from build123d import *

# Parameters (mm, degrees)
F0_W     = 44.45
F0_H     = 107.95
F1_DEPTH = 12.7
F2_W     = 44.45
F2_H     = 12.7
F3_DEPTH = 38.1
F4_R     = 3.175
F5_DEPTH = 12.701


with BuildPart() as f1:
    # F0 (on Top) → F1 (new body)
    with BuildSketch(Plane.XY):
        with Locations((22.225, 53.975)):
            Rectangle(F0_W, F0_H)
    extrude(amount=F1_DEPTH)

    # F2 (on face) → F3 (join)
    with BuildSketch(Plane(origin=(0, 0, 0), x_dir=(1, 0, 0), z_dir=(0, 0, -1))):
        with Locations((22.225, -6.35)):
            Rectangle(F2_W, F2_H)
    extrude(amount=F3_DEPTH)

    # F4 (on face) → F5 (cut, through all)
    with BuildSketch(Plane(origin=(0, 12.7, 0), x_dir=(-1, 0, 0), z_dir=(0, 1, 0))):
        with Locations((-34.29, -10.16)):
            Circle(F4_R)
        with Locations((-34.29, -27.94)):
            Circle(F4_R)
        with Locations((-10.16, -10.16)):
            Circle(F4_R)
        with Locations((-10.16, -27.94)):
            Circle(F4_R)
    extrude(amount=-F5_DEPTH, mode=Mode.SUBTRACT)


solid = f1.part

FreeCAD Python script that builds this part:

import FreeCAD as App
import Part
import Sketcher
Q = App.Units.Quantity

doc = App.newDocument("Part")
body = doc.addObject("PartDesign::Body", "Body")

sketch1 = body.newObject("Sketcher::SketchObject", "Sketch")
sketch1.AttachmentSupport = (doc.getObject("XY_Plane"), [""])
sketch1.MapMode = "FlatFace"
sketch1.addGeometry([
    Part.LineSegment(App.Vector(0, 108, 0), App.Vector(0, 0, 0)),
    Part.LineSegment(App.Vector(0, 0, 0), App.Vector(44, 0, 0)),
    Part.LineSegment(App.Vector(44, 0, 0), App.Vector(44, 108, 0)),
    Part.LineSegment(App.Vector(44, 108, 0), App.Vector(0, 108, 0)),
], False)
sketch1.addConstraint([
    Sketcher.Constraint("Coincident", 0, 2, 1, 1),
    Sketcher.Constraint("Coincident", 1, 2, 2, 1),
    Sketcher.Constraint("Coincident", 2, 2, 3, 1),
    Sketcher.Constraint("Coincident", 3, 2, 0, 1),
    Sketcher.Constraint("Vertical", 0),
    Sketcher.Constraint("Horizontal", 1),
    Sketcher.Constraint("Vertical", 2),
    Sketcher.Constraint("Horizontal", 3),
    Sketcher.Constraint("Coincident", 0, 2, -1, 1),
    Sketcher.Constraint("DistanceX", 1, 1, 1, 2, Q("1.75 in")),
    Sketcher.Constraint("DistanceY", 0, 2, 0, 1, Q("4.25 in")),
])
pad1 = body.newObject("PartDesign::Pad", "Pad")
pad1.Profile = sketch1
pad1.Length = Q("0.5 in")

sketch2 = body.newObject("Sketcher::SketchObject", "Sketch001")
sketch2.AttachmentSupport = (doc.getObject("XY_Plane"), [""])
sketch2.MapMode = "FlatFace"
sketch2.addGeometry([
    Part.LineSegment(App.Vector(0, 0, 0), App.Vector(0, 13, 0)),
    Part.LineSegment(App.Vector(0, 13, 0), App.Vector(44, 13, 0)),
    Part.LineSegment(App.Vector(44, 13, 0), App.Vector(44, 0, 0)),
    Part.LineSegment(App.Vector(44, 0, 0), App.Vector(0, 0, 0)),
], False)
sketch2.addConstraint([
    Sketcher.Constraint("Coincident", 0, 2, 1, 1),
    Sketcher.Constraint("Coincident", 1, 2, 2, 1),
    Sketcher.Constraint("Coincident", 2, 2, 3, 1),
    Sketcher.Constraint("Coincident", 3, 2, 0, 1),
    Sketcher.Constraint("Vertical", 0),
    Sketcher.Constraint("Horizontal", 1),
    Sketcher.Constraint("Vertical", 2),
    Sketcher.Constraint("Horizontal", 3),
    Sketcher.Constraint("Coincident", 3, 2, -1, 1),
    Sketcher.Constraint("DistanceY", 0, 1, 0, 2, Q("0.5 in")),
    Sketcher.Constraint("DistanceX", 1, 1, 1, 2, Q("1.75 in")),
])
pad2 = body.newObject("PartDesign::Pad", "Pad001")
pad2.Profile = sketch2
pad2.Length = Q("1.5 in")
pad2.Reversed = True

sketch3 = body.newObject("Sketcher::SketchObject", "Sketch002")
sketch3.AttachmentSupport = (doc.getObject("XZ_Plane"), [""])
sketch3.MapMode = "FlatFace"
sketch3.AttachmentOffset = App.Placement(App.Vector(0, 0, -0.5 * 25.4), App.Rotation())
sketch3.addGeometry([
    Part.Circle(App.Vector(34.3, -10.2, 0), App.Vector(0, 0, 1), 3.2),
    Part.Circle(App.Vector(34.3, -27.9, 0), App.Vector(0, 0, 1), 3.2),
    Part.Circle(App.Vector(10.2, -10.2, 0), App.Vector(0, 0, 1), 3.2),
    Part.Circle(App.Vector(10.2, -27.9, 0), App.Vector(0, 0, 1), 3.2),
], False)
sketch3.addConstraint([
    Sketcher.Constraint("Equal", 0, 1),
    Sketcher.Constraint("Equal", 1, 2),
    Sketcher.Constraint("Equal", 2, 3),
    Sketcher.Constraint("Horizontal", 0, 3, 2, 3),
    Sketcher.Constraint("Horizontal", 1, 3, 3, 3),
    Sketcher.Constraint("Vertical", 0, 3, 1, 3),
    Sketcher.Constraint("Vertical", 2, 3, 3, 3),
    Sketcher.Constraint("Diameter", 0, Q("0.25 in")),
    Sketcher.Constraint("DistanceY", 0, 3, -1, 1, Q("0.4 in")),
    Sketcher.Constraint("DistanceY", 1, 3, -1, 1, Q("1.1 in")),
    Sketcher.Constraint("DistanceX", -1, 1, 2, 3, Q("0.4 in")),
    Sketcher.Constraint("DistanceX", -1, 1, 0, 3, Q("1.35 in")),
])
pocket1 = body.newObject("PartDesign::Pocket", "Pocket")
pocket1.Profile = sketch3
pocket1.Type = "ThroughAll"
pocket1.Reversed = True

doc.recompute()
